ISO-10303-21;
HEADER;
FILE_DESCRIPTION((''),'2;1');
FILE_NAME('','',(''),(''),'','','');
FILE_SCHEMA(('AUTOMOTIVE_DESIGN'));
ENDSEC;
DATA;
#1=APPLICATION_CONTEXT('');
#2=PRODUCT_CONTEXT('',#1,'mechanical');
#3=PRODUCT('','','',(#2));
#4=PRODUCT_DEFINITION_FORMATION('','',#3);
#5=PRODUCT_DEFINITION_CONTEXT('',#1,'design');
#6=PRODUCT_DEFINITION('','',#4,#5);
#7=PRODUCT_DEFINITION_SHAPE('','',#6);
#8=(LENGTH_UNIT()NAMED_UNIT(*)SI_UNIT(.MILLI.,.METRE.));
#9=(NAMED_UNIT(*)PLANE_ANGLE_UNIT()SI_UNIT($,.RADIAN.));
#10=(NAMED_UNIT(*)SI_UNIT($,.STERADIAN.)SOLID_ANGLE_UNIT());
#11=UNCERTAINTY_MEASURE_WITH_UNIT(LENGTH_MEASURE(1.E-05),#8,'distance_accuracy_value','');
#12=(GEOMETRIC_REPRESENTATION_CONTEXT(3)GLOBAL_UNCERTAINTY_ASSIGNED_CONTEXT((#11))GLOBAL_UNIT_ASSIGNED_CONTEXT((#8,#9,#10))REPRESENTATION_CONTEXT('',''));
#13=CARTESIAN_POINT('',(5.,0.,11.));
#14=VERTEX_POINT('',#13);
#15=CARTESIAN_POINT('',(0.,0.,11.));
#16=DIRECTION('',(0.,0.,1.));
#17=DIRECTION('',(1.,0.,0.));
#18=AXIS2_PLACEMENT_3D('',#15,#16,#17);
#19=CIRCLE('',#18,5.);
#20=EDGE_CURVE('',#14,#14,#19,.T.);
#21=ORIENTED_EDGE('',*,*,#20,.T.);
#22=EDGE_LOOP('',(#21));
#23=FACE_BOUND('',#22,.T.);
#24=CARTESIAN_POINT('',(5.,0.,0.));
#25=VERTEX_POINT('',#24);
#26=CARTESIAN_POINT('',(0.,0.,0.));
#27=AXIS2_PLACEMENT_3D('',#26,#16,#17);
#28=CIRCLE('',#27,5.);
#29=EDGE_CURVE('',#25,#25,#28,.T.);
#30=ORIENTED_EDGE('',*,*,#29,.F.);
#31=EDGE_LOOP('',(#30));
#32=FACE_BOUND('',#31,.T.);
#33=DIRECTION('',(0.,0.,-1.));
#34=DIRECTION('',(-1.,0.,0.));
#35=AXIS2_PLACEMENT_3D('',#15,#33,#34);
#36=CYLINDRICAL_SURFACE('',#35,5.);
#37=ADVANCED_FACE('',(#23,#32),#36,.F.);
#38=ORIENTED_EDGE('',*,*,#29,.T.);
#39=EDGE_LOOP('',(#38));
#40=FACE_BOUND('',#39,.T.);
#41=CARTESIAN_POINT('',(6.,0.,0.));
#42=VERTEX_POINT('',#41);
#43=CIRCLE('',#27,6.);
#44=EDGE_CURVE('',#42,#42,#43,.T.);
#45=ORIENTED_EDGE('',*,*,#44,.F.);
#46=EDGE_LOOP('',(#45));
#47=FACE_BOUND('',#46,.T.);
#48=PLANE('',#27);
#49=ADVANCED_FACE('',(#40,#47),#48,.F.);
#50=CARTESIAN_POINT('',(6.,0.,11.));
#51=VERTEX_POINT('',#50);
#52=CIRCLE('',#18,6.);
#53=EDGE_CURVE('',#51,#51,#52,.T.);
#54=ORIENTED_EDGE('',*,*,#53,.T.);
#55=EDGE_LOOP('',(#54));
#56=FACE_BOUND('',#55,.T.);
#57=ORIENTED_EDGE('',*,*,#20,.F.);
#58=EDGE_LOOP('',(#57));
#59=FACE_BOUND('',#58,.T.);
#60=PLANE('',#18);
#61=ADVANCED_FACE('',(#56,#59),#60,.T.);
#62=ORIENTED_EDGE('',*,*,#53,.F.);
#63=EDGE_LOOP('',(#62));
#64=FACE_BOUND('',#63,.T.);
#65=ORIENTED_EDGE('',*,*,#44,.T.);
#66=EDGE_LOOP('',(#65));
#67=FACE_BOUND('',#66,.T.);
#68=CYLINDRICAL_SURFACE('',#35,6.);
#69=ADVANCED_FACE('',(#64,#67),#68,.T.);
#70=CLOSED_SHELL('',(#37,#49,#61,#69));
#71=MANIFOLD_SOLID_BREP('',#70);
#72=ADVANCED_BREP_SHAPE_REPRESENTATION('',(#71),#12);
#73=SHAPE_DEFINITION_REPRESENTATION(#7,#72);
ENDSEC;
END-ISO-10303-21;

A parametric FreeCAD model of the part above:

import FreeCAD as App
import Part
import Sketcher

doc = App.newDocument("Part")
params = doc.addObject("Spreadsheet::Sheet", "Params")
for row, (alias, value) in enumerate([
    ("sketch1_diameter", "12 mm"),
    ("sketch1_diameter2", "10 mm"),
    ("pad1_length", "11 mm"),
], start=1):
    params.set(f"A{row}", alias)
    params.set(f"B{row}", "=" + value)
    params.setAlias(f"B{row}", alias)

body = doc.addObject("PartDesign::Body", "Body")

# Sketch on XY plane
sketch1 = body.newObject("Sketcher::SketchObject", "Sketch")
sketch1.AttachmentSupport = (doc.getObject("XY_Plane"), [""])
sketch1.MapMode = "FlatFace"
sketch1.addGeometry([
    Part.Circle(App.Vector(0, 0, 0), App.Vector(0, 0, 1), 6),
    Part.Circle(App.Vector(0, 0, 0), App.Vector(0, 0, 1), 5),
], False)
sketch1.addConstraint([
    Sketcher.Constraint("Coincident", 0, 3, -1, 1),
    Sketcher.Constraint("Coincident", 1, 3, -1, 1),
    Sketcher.Constraint("Diameter", 0, 12.0),
    Sketcher.Constraint("Diameter", 1, 10.0),
])
sketch1.setExpression("Constraints[2]", "Params.sketch1_diameter")
sketch1.setExpression("Constraints[3]", "Params.sketch1_diameter2")
pad1 = body.newObject("PartDesign::Pad", "Pad")
pad1.Profile = sketch1
pad1.setExpression("Length", "Params.pad1_length")

doc.recompute()
